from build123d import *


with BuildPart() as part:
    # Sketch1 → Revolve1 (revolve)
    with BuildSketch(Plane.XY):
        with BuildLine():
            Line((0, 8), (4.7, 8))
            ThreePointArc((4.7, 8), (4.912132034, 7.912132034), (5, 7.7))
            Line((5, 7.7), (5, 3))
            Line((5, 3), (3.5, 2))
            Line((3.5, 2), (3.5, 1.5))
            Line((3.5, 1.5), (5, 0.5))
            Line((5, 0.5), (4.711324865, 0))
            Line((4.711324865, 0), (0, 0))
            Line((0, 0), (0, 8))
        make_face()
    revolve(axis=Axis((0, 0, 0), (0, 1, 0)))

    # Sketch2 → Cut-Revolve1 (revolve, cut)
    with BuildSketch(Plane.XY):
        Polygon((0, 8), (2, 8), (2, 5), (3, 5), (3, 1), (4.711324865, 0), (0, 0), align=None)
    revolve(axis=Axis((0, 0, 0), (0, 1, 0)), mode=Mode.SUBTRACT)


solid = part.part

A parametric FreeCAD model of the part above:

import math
import FreeCAD as App
import Part
import Sketcher
Q = App.Units.Quantity

doc = App.newDocument("Part")
body = doc.addObject("PartDesign::Body", "Body")

sketch1 = body.newObject("Sketcher::SketchObject", "Sketch")
sketch1.AttachmentSupport = (doc.getObject("XY_Plane"), [""])
sketch1.MapMode = "FlatFace"
sketch1.addGeometry(Part.LineSegment(App.Vector(4.7, 8, 0), App.Vector(0, 8, 0)), False)
sketch1.addGeometry(Part.LineSegment(App.Vector(0, 8, 0), App.Vector(0, 0, 0)), False)
sketch1.addGeometry(Part.LineSegment(App.Vector(0, 0, 0), App.Vector(4.71, 0, 0)), False)
sketch1.addGeometry(Part.LineSegment(App.Vector(4.71, 0, 0), App.Vector(5, 0.5, 0)), False)
sketch1.addGeometry(Part.LineSegment(App.Vector(5, 0.5, 0), App.Vector(3.5, 1.5, 0)), False)
sketch1.addGeometry(Part.LineSegment(App.Vector(3.5, 1.5, 0), App.Vector(3.5, 2, 0)), False)
sketch1.addGeometry(Part.LineSegment(App.Vector(3.5, 2, 0), App.Vector(5, 3, 0)), False)
sketch1.addGeometry(Part.LineSegment(App.Vector(5, 3, 0), App.Vector(5, 7.7, 0)), False)
sketch1.addGeometry(Part.ArcOfCircle(Part.Circle(App.Vector(4.7, 7.7, 0), App.Vector(0, 0, 1), 0.3), math.radians(0), math.radians(90)), False)
sketch1.addConstraint(Sketcher.Constraint("Coincident", 0, 2, 1, 1))
sketch1.addConstraint(Sketcher.Constraint("Coincident", 1, 2, 2, 1))
sketch1.addConstraint(Sketcher.Constraint("Coincident", 2, 2, 3, 1))
sketch1.addConstraint(Sketcher.Constraint("Coincident", 3, 2, 4, 1))
sketch1.addConstraint(Sketcher.Constraint("Coincident", 4, 2, 5, 1))
sketch1.addConstraint(Sketcher.Constraint("Coincident", 5, 2, 6, 1))
sketch1.addConstraint(Sketcher.Constraint("Coincident", 6, 2, 7, 1))
sketch1.addConstraint(Sketcher.Constraint("Tangent", 7, 2, 8, 1))
sketch1.addConstraint(Sketcher.Constraint("Tangent", 8, 2, 0, 1))
sketch1.addConstraint(Sketcher.Constraint("Horizontal", 0))
sketch1.addConstraint(Sketcher.Constraint("Vertical", 1))
sketch1.addConstraint(Sketcher.Constraint("Horizontal", 2))
sketch1.addConstraint(Sketcher.Constraint("Vertical", 5))
sketch1.addConstraint(Sketcher.Constraint("Vertical", 7))
sketch1.addConstraint(Sketcher.Constraint("Coincident", 1, 2, -1, 1))
sketch1.addConstraint(Sketcher.Constraint("Vertical", 3, 2, 6, 2))
sketch1.addConstraint(Sketcher.Constraint("Equal", 0, 7))
sketch1.addConstraint(Sketcher.Constraint("Equal", 4, 6))
sketch1.addConstraint(Sketcher.Constraint("Radius", 8, 0.3))
sketch1.addConstraint(Sketcher.Constraint("DistanceY", 1, 2, 1, 1, 8.0))
sketch1.addConstraint(Sketcher.Constraint("Angle", 3, Q("60 deg")))
sketch1.addConstraint(Sketcher.Constraint("DistanceX", 0, 2, 0, 1, 4.7))
sketch1.addConstraint(Sketcher.Constraint("DistanceY", 5, 1, 5, 2, 0.5))
sketch1.addConstraint(Sketcher.Constraint("DistanceY", -1, 1, 5, 2, 2.0))
sketch1.addConstraint(Sketcher.Constraint("DistanceX", -1, 1, 4, 2, 3.5))
revolution = body.newObject("PartDesign::Revolution", "Revolution")
revolution.Profile = sketch1
revolution.ReferenceAxis = (sketch1, ["V_Axis"])
revolution.Angle = 360

sketch2 = body.newObject("Sketcher::SketchObject", "Sketch001")
sketch2.AttachmentSupport = (doc.getObject("XY_Plane"), [""])
sketch2.MapMode = "FlatFace"
sketch2.addGeometry(Part.LineSegment(App.Vector(2, 8, 0), App.Vector(0, 8, 0)), False)
sketch2.addGeometry(Part.LineSegment(App.Vector(0, 8, 0), App.Vector(0, 0, 0)), False)
sketch2.addGeometry(Part.LineSegment(App.Vector(0, 0, 0), App.Vector(4.7, 0, 0)), False)
sketch2.addGeometry(Part.LineSegment(App.Vector(4.7, 0, 0), App.Vector(3, 1, 0)), False)
sketch2.addGeometry(Part.LineSegment(App.Vector(3, 1, 0), App.Vector(3, 5, 0)), False)
sketch2.addGeometry(Part.LineSegment(App.Vector(3, 5, 0), App.Vector(2, 5, 0)), False)
sketch2.addGeometry(Part.LineSegment(App.Vector(2, 5, 0), App.Vector(2, 8, 0)), False)
sketch2.addConstraint(Sketcher.Constraint("Coincident", 0, 2, 1, 1))
sketch2.addConstraint(Sketcher.Constraint("Coincident", 1, 2, 2, 1))
sketch2.addConstraint(Sketcher.Constraint("Coincident", 2, 2, 3, 1))
sketch2.addConstraint(Sketcher.Constraint("Coincident", 3, 2, 4, 1))
sketch2.addConstraint(Sketcher.Constraint("Coincident", 4, 2, 5, 1))
sketch2.addConstraint(Sketcher.Constraint("Coincident", 5, 2, 6, 1))
sketch2.addConstraint(Sketcher.Constraint("Coincident", 6, 2, 0, 1))
sketch2.addConstraint(Sketcher.Constraint("Horizontal", 0))
sketch2.addConstraint(Sketcher.Constraint("Vertical", 1))
sketch2.addConstraint(Sketcher.Constraint("Horizontal", 2))
sketch2.addConstraint(Sketcher.Constraint("Vertical", 4))
sketch2.addConstraint(Sketcher.Constraint("Horizontal", 5))
sketch2.addConstraint(Sketcher.Constraint("Vertical", 6))
sketch2.addConstraint(Sketcher.Constraint("Coincident", 1, 2, -1, 1))
sketch2.addConstraint(Sketcher.Constraint("DistanceX", 0, 2, 0, 1, 2.0))
sketch2.addConstraint(Sketcher.Constraint("DistanceX", 5, 2, 5, 1, 1.0))
sketch2.addConstraint(Sketcher.Constraint("DistanceY", 1, 2, 1, 1, 8.0))
sketch2.addConstraint(Sketcher.Constraint("DistanceY", 4, 1, 4, 2, 4.0))
sketch2.addConstraint(Sketcher.Constraint("DistanceY", 6, 1, 6, 2, 3.0))
sketch2.addConstraint(Sketcher.Constraint("DistanceX", 2, 1, 2, 2, 4.711325))
groove = body.newObject("PartDesign::Groove", "Groove")
groove.Profile = sketch2
groove.ReferenceAxis = (sketch2, ["V_Axis"])
groove.Angle = 360

doc.recompute()
